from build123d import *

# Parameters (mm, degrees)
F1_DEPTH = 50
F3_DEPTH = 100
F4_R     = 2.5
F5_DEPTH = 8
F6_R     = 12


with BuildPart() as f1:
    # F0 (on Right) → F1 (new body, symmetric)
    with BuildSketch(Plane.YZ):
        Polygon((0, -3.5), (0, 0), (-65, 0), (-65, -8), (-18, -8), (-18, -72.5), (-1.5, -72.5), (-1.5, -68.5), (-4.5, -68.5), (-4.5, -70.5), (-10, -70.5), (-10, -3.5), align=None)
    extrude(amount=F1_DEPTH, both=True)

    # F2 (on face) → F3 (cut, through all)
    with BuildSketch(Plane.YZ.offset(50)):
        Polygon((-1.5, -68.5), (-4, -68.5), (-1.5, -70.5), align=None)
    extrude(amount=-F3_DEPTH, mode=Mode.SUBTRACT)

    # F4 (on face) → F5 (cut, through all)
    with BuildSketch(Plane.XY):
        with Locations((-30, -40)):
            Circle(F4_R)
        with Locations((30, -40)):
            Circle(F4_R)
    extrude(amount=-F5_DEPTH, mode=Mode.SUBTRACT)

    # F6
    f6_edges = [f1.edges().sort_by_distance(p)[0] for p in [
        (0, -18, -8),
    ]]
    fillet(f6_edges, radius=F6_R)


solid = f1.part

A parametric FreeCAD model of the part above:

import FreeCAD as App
import Part
import Sketcher


def edges_at(feature, points):
    """Names of the edges that pass closest to the given points."""
    edges = feature.Shape.Edges
    near = lambda p: min(range(len(edges)), key=lambda i: edges[i].distToShape(Part.Vertex(*p))[0])
    return sorted({f"Edge{near(p) + 1}" for p in points})


def add_polygon(sketch, points):
    """Adds a closed chain of lines whose ends are joined by coincident constraints."""
    first, n = sketch.GeometryCount, len(points)
    for a, b in zip(points, points[1:] + points[:1]):
        sketch.addGeometry(Part.LineSegment(App.Vector(*a, 0), App.Vector(*b, 0)), False)
    for i in range(n):
        sketch.addConstraint(Sketcher.Constraint("Coincident", first + i, 2, first + (i + 1) % n, 1))

doc = App.newDocument("Part")
body = doc.addObject("PartDesign::Body", "Body")

# Sketch on YZ plane
sketch1 = body.newObject("Sketcher::SketchObject", "Sketch")
sketch1.AttachmentSupport = (doc.getObject("YZ_Plane"), [""])
sketch1.MapMode = "FlatFace"
add_polygon(sketch1, [(0, -3.5), (0, 0), (-65, 0), (-65, -8), (-18, -8), (-18, -72.5), (-1.5, -72.5), (-1.5, -68.5), (-4.5, -68.5), (-4.5, -70.5), (-10, -70.5), (-10, -3.5)])  # lines 0-11
sketch1.addConstraint(Sketcher.Constraint("Vertical", 0))
sketch1.addConstraint(Sketcher.Constraint("Horizontal", 1))
sketch1.addConstraint(Sketcher.Constraint("Vertical", 2))
sketch1.addConstraint(Sketcher.Constraint("Horizontal", 3))
sketch1.addConstraint(Sketcher.Constraint("Vertical", 4))
sketch1.addConstraint(Sketcher.Constraint("Horizontal", 5))
sketch1.addConstraint(Sketcher.Constraint("Vertical", 6))
sketch1.addConstraint(Sketcher.Constraint("Horizontal", 7))
sketch1.addConstraint(Sketcher.Constraint("Vertical", 8))
sketch1.addConstraint(Sketcher.Constraint("Horizontal", 9))
sketch1.addConstraint(Sketcher.Constraint("Vertical", 10))
sketch1.addConstraint(Sketcher.Constraint("Horizontal", 11))
sketch1.addConstraint(Sketcher.Constraint("Coincident", 0, 2, -1, 1))
sketch1.addConstraint(Sketcher.Constraint("DistanceX", 1, 2, 1, 1, 65.0))
sketch1.addConstraint(Sketcher.Constraint("DistanceX", 3, 1, 3, 2, 47.0))
sketch1.addConstraint(Sketcher.Constraint("DistanceX", 7, 2, 7, 1, 3.0))
sketch1.addConstraint(Sketcher.Constraint("DistanceX", 11, 1, 11, 2, 10.0))
sketch1.addConstraint(Sketcher.Constraint("DistanceY", 2, 2, 2, 1, 8.0))
sketch1.addConstraint(Sketcher.Constraint("DistanceY", 6, 1, 6, 2, 4.0))
sketch1.addConstraint(Sketcher.Constraint("DistanceY", 8, 2, 8, 1, 2.0))
sketch1.addConstraint(Sketcher.Constraint("DistanceY", 10, 1, 10, 2, 67.0))
sketch1.addConstraint(Sketcher.Constraint("DistanceX", 5, 1, 5, 2, 16.5))
sketch1.addConstraint(Sketcher.Constraint("DistanceY", 0, 1, 0, 2, 3.5))
pad1 = body.newObject("PartDesign::Pad", "Pad")
pad1.Profile = sketch1
pad1.Length = 100
pad1.Midplane = True

# Sketch on YZ plane
sketch2 = body.newObject("Sketcher::SketchObject", "Sketch001")
sketch2.AttachmentSupport = (doc.getObject("YZ_Plane"), [""])
sketch2.MapMode = "FlatFace"
sketch2.AttachmentOffset = App.Placement(App.Vector(0, 0, 50), App.Rotation())
add_polygon(sketch2, [(-1.5, -68.5), (-4, -68.5), (-1.5, -70.5)])  # lines 0-2
sketch2.addConstraint(Sketcher.Constraint("Horizontal", 0))
sketch2.addConstraint(Sketcher.Constraint("Vertical", 2))
sketch2.addConstraint(Sketcher.Constraint("DistanceY", 2, 1, 2, 2, 2.0))
sketch2.addConstraint(Sketcher.Constraint("DistanceX", 0, 2, 0, 1, 2.5))
sketch2.addConstraint(Sketcher.Constraint("DistanceX", 0, 2, -1, 1, 4.0))
sketch2.addConstraint(Sketcher.Constraint("DistanceY", 0, 2, -1, 1, 68.5))
pocket1 = body.newObject("PartDesign::Pocket", "Pocket")
pocket1.Profile = sketch2
pocket1.Type = "ThroughAll"

# Sketch on XY plane
sketch3 = body.newObject("Sketcher::SketchObject", "Sketch002")
sketch3.AttachmentSupport = (doc.getObject("XY_Plane"), [""])
sketch3.MapMode = "FlatFace"
sketch3.addGeometry(Part.Circle(App.Vector(-30, -40, 0), App.Vector(0, 0, 1), 2.5), False)
sketch3.addGeometry(Part.Circle(App.Vector(30, -40, 0), App.Vector(0, 0, 1), 2.5), False)
sketch3.addConstraint(Sketcher.Constraint("Equal", 0, 1))
sketch3.addConstraint(Sketcher.Constraint("Symmetric", 0, 3, 1, 3, -2))
sketch3.addConstraint(Sketcher.Constraint("Diameter", 0, 5.0))
sketch3.addConstraint(Sketcher.Constraint("DistanceX", 0, 3, -1, 1, 30.0))
sketch3.addConstraint(Sketcher.Constraint("DistanceY", 0, 3, -1, 1, 40.0))
pocket2 = body.newObject("PartDesign::Pocket", "Pocket001")
pocket2.Profile = sketch3
pocket2.Type = "ThroughAll"
doc.recompute()

fillet = body.newObject("PartDesign::Fillet", "Fillet")
fillet.Base = (pocket2, edges_at(pocket2, [(0, -18, -8)]))
fillet.Radius = 12

doc.recompute()
